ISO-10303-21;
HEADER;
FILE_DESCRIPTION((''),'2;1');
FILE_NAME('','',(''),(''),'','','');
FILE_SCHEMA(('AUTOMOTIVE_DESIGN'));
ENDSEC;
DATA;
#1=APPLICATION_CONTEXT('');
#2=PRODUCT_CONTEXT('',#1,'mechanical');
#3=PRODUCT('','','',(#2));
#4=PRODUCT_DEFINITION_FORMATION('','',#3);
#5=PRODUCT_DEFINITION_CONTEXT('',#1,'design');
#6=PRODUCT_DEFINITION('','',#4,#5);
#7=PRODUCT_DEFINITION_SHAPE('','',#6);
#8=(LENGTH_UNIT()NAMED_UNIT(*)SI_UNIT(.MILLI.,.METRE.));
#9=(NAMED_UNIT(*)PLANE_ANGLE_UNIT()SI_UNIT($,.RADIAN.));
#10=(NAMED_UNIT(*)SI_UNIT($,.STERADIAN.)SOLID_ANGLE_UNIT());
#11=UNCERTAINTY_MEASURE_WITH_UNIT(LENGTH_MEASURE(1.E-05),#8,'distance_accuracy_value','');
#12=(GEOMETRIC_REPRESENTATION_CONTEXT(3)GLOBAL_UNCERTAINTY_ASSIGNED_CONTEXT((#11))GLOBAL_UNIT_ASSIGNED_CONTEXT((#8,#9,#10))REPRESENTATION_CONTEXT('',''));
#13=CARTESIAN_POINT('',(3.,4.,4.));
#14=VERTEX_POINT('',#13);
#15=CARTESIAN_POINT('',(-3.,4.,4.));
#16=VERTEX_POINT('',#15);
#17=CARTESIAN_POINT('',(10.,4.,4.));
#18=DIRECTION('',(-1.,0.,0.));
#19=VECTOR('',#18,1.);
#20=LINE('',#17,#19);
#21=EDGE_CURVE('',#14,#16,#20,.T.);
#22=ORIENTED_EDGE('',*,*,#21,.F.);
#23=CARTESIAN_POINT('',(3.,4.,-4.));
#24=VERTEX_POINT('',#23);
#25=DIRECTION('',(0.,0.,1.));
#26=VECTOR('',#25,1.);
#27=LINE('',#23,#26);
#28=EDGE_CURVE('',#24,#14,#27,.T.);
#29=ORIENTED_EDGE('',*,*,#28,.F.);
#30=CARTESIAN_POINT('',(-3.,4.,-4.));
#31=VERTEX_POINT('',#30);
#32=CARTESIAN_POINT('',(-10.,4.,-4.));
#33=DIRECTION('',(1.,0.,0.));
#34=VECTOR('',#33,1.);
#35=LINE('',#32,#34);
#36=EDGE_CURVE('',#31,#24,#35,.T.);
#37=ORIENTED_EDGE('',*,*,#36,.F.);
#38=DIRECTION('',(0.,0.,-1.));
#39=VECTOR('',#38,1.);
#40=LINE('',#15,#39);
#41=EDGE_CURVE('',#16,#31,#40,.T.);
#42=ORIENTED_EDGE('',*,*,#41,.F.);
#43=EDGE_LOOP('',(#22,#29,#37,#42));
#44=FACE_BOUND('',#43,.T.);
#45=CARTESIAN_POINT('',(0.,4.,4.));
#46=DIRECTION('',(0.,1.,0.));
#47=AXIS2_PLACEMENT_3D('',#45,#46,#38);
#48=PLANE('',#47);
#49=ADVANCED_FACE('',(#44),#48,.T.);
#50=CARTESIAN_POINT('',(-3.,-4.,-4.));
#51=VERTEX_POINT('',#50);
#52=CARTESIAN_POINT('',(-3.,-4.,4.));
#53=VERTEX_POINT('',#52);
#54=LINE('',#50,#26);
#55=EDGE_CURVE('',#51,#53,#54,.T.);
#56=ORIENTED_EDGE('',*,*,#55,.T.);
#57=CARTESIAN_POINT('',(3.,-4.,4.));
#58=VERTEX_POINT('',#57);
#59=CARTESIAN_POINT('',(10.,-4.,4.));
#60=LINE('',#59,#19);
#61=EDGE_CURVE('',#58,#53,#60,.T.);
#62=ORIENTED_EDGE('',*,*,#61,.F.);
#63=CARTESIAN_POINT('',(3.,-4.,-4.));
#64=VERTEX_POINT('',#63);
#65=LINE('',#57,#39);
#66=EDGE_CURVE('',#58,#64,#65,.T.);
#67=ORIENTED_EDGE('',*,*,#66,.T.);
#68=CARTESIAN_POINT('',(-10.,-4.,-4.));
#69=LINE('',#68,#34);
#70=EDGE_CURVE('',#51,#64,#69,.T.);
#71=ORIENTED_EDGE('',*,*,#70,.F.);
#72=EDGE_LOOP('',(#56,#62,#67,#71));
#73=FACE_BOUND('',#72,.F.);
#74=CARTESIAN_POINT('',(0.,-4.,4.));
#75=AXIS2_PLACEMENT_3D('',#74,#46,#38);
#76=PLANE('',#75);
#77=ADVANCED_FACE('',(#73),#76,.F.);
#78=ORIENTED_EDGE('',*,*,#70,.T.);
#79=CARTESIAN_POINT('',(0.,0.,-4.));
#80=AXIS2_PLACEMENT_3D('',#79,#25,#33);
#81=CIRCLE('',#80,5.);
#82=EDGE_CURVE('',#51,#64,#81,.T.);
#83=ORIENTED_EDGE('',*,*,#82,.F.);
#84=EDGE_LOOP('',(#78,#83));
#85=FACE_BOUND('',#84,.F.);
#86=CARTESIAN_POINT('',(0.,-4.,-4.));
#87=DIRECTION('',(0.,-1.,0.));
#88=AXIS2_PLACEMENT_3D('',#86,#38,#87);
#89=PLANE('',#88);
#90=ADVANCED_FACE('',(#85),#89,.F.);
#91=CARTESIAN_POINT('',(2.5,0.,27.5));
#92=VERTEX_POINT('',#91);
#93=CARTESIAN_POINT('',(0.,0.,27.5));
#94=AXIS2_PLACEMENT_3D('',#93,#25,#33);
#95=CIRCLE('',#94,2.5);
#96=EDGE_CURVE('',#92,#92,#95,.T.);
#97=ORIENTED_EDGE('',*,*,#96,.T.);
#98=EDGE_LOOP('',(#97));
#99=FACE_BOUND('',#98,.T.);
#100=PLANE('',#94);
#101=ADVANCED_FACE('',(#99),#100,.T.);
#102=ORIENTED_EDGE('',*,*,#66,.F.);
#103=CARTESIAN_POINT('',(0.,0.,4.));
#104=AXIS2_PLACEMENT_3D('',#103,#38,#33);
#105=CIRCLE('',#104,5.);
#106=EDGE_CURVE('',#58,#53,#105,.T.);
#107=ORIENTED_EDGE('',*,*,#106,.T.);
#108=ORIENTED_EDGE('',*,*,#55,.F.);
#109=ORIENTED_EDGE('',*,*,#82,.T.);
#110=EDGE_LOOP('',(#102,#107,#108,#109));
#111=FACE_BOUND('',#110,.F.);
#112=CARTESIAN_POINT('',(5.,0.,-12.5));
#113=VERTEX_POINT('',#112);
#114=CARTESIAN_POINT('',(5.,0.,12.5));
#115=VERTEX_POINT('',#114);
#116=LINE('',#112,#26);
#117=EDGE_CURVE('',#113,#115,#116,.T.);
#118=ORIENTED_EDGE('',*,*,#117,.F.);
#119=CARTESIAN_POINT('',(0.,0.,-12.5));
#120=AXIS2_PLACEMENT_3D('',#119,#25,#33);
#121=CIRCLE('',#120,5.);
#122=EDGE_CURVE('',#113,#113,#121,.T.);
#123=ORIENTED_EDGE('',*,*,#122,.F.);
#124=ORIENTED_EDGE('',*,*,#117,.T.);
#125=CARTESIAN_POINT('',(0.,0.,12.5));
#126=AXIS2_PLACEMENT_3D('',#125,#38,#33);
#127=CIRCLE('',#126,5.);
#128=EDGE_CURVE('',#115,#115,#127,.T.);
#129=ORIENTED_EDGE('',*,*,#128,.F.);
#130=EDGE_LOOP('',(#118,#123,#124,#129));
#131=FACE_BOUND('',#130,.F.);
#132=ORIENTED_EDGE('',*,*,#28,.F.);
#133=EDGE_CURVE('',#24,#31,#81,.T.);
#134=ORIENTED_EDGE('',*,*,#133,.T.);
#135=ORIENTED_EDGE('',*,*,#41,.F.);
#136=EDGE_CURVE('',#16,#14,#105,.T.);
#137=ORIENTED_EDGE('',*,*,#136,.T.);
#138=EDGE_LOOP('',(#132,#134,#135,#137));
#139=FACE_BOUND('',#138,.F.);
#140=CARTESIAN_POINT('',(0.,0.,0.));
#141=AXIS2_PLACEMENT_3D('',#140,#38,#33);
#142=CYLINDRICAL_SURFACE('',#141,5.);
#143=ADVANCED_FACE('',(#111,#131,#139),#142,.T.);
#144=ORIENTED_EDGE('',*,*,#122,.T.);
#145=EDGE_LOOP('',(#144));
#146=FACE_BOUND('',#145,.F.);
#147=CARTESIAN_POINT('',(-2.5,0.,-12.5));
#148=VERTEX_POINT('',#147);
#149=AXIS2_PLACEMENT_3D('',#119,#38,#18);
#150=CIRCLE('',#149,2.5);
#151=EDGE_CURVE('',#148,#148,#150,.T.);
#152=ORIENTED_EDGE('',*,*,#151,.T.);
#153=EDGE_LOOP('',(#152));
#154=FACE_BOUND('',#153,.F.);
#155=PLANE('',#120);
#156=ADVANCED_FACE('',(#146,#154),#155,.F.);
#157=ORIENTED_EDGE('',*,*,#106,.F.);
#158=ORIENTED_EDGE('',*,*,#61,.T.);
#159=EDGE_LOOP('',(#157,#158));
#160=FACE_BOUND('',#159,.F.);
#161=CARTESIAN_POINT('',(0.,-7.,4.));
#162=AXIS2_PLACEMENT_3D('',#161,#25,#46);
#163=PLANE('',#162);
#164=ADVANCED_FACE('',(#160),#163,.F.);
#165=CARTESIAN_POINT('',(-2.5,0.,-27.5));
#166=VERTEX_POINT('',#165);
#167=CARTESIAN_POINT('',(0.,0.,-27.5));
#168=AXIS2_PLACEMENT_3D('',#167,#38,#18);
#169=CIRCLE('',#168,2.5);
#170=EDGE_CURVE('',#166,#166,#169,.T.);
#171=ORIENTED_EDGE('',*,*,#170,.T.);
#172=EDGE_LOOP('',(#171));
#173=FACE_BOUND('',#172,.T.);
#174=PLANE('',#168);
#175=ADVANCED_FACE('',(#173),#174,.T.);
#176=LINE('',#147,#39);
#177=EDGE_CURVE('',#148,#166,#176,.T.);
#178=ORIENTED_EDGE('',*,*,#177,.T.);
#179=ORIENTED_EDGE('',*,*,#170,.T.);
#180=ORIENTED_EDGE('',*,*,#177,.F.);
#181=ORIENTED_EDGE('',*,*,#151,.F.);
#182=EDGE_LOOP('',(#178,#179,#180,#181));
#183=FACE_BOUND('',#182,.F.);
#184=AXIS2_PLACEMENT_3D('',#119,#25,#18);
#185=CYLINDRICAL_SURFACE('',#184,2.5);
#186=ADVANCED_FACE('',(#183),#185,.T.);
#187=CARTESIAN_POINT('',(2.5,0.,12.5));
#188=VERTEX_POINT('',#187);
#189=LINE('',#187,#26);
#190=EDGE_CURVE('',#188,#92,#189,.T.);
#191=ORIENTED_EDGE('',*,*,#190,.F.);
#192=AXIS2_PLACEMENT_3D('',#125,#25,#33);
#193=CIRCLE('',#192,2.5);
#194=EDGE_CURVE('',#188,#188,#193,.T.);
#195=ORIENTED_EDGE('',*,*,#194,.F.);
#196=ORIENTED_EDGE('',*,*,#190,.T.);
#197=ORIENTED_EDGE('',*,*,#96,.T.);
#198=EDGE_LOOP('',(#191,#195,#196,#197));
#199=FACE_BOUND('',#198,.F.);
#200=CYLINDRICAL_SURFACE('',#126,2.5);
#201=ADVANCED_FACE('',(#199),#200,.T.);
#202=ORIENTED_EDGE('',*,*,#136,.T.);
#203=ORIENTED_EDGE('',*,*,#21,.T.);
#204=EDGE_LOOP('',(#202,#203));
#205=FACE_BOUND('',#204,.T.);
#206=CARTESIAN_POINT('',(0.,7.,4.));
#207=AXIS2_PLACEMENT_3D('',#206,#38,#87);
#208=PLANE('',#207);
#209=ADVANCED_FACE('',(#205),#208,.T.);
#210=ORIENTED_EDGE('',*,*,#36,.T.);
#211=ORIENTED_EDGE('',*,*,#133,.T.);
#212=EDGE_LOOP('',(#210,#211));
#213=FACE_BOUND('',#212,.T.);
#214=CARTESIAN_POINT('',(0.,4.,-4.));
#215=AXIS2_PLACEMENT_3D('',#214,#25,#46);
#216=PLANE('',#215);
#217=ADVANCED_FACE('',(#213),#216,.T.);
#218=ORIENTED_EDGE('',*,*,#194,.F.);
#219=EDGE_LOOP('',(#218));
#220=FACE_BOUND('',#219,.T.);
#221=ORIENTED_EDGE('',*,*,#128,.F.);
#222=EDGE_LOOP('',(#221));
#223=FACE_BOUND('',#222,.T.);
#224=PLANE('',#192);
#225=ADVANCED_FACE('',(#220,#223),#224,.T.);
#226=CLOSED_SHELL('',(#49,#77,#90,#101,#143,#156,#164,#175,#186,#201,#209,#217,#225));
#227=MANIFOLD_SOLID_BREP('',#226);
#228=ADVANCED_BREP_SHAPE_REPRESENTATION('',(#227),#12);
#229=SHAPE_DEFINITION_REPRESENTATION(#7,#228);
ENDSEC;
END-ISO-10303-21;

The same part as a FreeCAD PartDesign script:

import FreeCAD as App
import Part
import Sketcher
from FreeCAD import Vector
Q = App.Units.Quantity

doc = App.newDocument("Part")
body = doc.addObject("PartDesign::Body", "Body")

# Sketch on XY plane
sketch1 = body.newObject("Sketcher::SketchObject", "Sketch")
sketch1.AttachmentSupport = (doc.getObject("XY_Plane"), [""])
sketch1.MapMode = "FlatFace"
sketch1.addGeometry(Part.Circle(Vector(0, 0, 0), Vector(0, 0, 1), 5), False)
sketch1.addConstraint(Sketcher.Constraint("Coincident", 0, 3, -1, 1))
sketch1.addConstraint(Sketcher.Constraint("Diameter", 0, Q("10 mm")))
pad1 = body.newObject("PartDesign::Pad", "Pad")
pad1.Profile = sketch1
pad1.Length = 25
pad1.Midplane = True

# Sketch on XY plane
sketch2 = body.newObject("Sketcher::SketchObject", "Sketch001")
sketch2.AttachmentSupport = (doc.getObject("XY_Plane"), [""])
sketch2.MapMode = "FlatFace"
sketch2.AttachmentOffset = App.Placement(Vector(0, 0, -12.5), App.Rotation())
sketch2.addGeometry(Part.Circle(Vector(0, 0, 0), Vector(0, 0, 1), 2.5), False)
sketch2.addConstraint(Sketcher.Constraint("Coincident", 0, 3, -1, 1))
sketch2.addConstraint(Sketcher.Constraint("Diameter", 0, Q("5 mm")))
pad2 = body.newObject("PartDesign::Pad", "Pad001")
pad2.Profile = sketch2
pad2.Length = 15
pad2.Reversed = True

# Sketch on XY plane
sketch3 = body.newObject("Sketcher::SketchObject", "Sketch002")
sketch3.AttachmentSupport = (doc.getObject("XY_Plane"), [""])
sketch3.MapMode = "FlatFace"
sketch3.AttachmentOffset = App.Placement(Vector(0, 0, 12.5), App.Rotation())
sketch3.addGeometry(Part.Circle(Vector(0, 0, 0), Vector(0, 0, 1), 2.5), False)
sketch3.addConstraint(Sketcher.Constraint("Coincident", 0, 3, -1, 1))
sketch3.addConstraint(Sketcher.Constraint("Diameter", 0, Q("5 mm")))
pad3 = body.newObject("PartDesign::Pad", "Pad002")
pad3.Profile = sketch3
pad3.Length = 15

# Sketch on YZ plane
sketch4 = body.newObject("Sketcher::SketchObject", "Sketch003")
sketch4.AttachmentSupport = (doc.getObject("YZ_Plane"), [""])
sketch4.MapMode = "FlatFace"
sketch4.addGeometry(Part.LineSegment(Vector(-7, 4, 0), Vector(-7, -4, 0)), False)
sketch4.addGeometry(Part.LineSegment(Vector(-7, -4, 0), Vector(-4, -4, 0)), False)
sketch4.addGeometry(Part.LineSegment(Vector(-4, -4, 0), Vector(-4, 4, 0)), False)
sketch4.addGeometry(Part.LineSegment(Vector(-4, 4, 0), Vector(-7, 4, 0)), False)
sketch4.addGeometry(Part.LineSegment(Vector(4, 4, 0), Vector(4, -4, 0)), False)
sketch4.addGeometry(Part.LineSegment(Vector(4, -4, 0), Vector(7, -4, 0)), False)
sketch4.addGeometry(Part.LineSegment(Vector(7, -4, 0), Vector(7, 4, 0)), False)
sketch4.addGeometry(Part.LineSegment(Vector(7, 4, 0), Vector(4, 4, 0)), False)
sketch4.addConstraint(Sketcher.Constraint("Coincident", 0, 2, 1, 1))
sketch4.addConstraint(Sketcher.Constraint("Coincident", 1, 2, 2, 1))
sketch4.addConstraint(Sketcher.Constraint("Coincident", 2, 2, 3, 1))
sketch4.addConstraint(Sketcher.Constraint("Coincident", 3, 2, 0, 1))
sketch4.addConstraint(Sketcher.Constraint("Coincident", 4, 2, 5, 1))
sketch4.addConstraint(Sketcher.Constraint("Coincident", 5, 2, 6, 1))
sketch4.addConstraint(Sketcher.Constraint("Coincident", 6, 2, 7, 1))
sketch4.addConstraint(Sketcher.Constraint("Coincident", 7, 2, 4, 1))
sketch4.addConstraint(Sketcher.Constraint("Vertical", 0))
sketch4.addConstraint(Sketcher.Constraint("Horizontal", 1))
sketch4.addConstraint(Sketcher.Constraint("Vertical", 2))
sketch4.addConstraint(Sketcher.Constraint("Horizontal", 3))
sketch4.addConstraint(Sketcher.Constraint("Vertical", 4))
sketch4.addConstraint(Sketcher.Constraint("Horizontal", 5))
sketch4.addConstraint(Sketcher.Constraint("Vertical", 6))
sketch4.addConstraint(Sketcher.Constraint("Horizontal", 7))
sketch4.addConstraint(Sketcher.Constraint("Symmetric", 2, 2, 4, 2, -1, 1))
sketch4.addConstraint(Sketcher.Constraint("Symmetric", 0, 2, 6, 2, -1, 1))
sketch4.addConstraint(Sketcher.Constraint("Horizontal", 1, 2, 4, 2))
sketch4.addConstraint(Sketcher.Constraint("DistanceX", 1, 1, 1, 2, Q("3 mm")))
sketch4.addConstraint(Sketcher.Constraint("DistanceY", 0, 2, 0, 1, Q("8 mm")))
sketch4.addConstraint(Sketcher.Constraint("DistanceX", 1, 2, 4, 2, Q("8 mm")))
pocket1 = body.newObject("PartDesign::Pocket", "Pocket")
pocket1.Profile = sketch4
pocket1.Length = 20
pocket1.Midplane = True

doc.recompute()
